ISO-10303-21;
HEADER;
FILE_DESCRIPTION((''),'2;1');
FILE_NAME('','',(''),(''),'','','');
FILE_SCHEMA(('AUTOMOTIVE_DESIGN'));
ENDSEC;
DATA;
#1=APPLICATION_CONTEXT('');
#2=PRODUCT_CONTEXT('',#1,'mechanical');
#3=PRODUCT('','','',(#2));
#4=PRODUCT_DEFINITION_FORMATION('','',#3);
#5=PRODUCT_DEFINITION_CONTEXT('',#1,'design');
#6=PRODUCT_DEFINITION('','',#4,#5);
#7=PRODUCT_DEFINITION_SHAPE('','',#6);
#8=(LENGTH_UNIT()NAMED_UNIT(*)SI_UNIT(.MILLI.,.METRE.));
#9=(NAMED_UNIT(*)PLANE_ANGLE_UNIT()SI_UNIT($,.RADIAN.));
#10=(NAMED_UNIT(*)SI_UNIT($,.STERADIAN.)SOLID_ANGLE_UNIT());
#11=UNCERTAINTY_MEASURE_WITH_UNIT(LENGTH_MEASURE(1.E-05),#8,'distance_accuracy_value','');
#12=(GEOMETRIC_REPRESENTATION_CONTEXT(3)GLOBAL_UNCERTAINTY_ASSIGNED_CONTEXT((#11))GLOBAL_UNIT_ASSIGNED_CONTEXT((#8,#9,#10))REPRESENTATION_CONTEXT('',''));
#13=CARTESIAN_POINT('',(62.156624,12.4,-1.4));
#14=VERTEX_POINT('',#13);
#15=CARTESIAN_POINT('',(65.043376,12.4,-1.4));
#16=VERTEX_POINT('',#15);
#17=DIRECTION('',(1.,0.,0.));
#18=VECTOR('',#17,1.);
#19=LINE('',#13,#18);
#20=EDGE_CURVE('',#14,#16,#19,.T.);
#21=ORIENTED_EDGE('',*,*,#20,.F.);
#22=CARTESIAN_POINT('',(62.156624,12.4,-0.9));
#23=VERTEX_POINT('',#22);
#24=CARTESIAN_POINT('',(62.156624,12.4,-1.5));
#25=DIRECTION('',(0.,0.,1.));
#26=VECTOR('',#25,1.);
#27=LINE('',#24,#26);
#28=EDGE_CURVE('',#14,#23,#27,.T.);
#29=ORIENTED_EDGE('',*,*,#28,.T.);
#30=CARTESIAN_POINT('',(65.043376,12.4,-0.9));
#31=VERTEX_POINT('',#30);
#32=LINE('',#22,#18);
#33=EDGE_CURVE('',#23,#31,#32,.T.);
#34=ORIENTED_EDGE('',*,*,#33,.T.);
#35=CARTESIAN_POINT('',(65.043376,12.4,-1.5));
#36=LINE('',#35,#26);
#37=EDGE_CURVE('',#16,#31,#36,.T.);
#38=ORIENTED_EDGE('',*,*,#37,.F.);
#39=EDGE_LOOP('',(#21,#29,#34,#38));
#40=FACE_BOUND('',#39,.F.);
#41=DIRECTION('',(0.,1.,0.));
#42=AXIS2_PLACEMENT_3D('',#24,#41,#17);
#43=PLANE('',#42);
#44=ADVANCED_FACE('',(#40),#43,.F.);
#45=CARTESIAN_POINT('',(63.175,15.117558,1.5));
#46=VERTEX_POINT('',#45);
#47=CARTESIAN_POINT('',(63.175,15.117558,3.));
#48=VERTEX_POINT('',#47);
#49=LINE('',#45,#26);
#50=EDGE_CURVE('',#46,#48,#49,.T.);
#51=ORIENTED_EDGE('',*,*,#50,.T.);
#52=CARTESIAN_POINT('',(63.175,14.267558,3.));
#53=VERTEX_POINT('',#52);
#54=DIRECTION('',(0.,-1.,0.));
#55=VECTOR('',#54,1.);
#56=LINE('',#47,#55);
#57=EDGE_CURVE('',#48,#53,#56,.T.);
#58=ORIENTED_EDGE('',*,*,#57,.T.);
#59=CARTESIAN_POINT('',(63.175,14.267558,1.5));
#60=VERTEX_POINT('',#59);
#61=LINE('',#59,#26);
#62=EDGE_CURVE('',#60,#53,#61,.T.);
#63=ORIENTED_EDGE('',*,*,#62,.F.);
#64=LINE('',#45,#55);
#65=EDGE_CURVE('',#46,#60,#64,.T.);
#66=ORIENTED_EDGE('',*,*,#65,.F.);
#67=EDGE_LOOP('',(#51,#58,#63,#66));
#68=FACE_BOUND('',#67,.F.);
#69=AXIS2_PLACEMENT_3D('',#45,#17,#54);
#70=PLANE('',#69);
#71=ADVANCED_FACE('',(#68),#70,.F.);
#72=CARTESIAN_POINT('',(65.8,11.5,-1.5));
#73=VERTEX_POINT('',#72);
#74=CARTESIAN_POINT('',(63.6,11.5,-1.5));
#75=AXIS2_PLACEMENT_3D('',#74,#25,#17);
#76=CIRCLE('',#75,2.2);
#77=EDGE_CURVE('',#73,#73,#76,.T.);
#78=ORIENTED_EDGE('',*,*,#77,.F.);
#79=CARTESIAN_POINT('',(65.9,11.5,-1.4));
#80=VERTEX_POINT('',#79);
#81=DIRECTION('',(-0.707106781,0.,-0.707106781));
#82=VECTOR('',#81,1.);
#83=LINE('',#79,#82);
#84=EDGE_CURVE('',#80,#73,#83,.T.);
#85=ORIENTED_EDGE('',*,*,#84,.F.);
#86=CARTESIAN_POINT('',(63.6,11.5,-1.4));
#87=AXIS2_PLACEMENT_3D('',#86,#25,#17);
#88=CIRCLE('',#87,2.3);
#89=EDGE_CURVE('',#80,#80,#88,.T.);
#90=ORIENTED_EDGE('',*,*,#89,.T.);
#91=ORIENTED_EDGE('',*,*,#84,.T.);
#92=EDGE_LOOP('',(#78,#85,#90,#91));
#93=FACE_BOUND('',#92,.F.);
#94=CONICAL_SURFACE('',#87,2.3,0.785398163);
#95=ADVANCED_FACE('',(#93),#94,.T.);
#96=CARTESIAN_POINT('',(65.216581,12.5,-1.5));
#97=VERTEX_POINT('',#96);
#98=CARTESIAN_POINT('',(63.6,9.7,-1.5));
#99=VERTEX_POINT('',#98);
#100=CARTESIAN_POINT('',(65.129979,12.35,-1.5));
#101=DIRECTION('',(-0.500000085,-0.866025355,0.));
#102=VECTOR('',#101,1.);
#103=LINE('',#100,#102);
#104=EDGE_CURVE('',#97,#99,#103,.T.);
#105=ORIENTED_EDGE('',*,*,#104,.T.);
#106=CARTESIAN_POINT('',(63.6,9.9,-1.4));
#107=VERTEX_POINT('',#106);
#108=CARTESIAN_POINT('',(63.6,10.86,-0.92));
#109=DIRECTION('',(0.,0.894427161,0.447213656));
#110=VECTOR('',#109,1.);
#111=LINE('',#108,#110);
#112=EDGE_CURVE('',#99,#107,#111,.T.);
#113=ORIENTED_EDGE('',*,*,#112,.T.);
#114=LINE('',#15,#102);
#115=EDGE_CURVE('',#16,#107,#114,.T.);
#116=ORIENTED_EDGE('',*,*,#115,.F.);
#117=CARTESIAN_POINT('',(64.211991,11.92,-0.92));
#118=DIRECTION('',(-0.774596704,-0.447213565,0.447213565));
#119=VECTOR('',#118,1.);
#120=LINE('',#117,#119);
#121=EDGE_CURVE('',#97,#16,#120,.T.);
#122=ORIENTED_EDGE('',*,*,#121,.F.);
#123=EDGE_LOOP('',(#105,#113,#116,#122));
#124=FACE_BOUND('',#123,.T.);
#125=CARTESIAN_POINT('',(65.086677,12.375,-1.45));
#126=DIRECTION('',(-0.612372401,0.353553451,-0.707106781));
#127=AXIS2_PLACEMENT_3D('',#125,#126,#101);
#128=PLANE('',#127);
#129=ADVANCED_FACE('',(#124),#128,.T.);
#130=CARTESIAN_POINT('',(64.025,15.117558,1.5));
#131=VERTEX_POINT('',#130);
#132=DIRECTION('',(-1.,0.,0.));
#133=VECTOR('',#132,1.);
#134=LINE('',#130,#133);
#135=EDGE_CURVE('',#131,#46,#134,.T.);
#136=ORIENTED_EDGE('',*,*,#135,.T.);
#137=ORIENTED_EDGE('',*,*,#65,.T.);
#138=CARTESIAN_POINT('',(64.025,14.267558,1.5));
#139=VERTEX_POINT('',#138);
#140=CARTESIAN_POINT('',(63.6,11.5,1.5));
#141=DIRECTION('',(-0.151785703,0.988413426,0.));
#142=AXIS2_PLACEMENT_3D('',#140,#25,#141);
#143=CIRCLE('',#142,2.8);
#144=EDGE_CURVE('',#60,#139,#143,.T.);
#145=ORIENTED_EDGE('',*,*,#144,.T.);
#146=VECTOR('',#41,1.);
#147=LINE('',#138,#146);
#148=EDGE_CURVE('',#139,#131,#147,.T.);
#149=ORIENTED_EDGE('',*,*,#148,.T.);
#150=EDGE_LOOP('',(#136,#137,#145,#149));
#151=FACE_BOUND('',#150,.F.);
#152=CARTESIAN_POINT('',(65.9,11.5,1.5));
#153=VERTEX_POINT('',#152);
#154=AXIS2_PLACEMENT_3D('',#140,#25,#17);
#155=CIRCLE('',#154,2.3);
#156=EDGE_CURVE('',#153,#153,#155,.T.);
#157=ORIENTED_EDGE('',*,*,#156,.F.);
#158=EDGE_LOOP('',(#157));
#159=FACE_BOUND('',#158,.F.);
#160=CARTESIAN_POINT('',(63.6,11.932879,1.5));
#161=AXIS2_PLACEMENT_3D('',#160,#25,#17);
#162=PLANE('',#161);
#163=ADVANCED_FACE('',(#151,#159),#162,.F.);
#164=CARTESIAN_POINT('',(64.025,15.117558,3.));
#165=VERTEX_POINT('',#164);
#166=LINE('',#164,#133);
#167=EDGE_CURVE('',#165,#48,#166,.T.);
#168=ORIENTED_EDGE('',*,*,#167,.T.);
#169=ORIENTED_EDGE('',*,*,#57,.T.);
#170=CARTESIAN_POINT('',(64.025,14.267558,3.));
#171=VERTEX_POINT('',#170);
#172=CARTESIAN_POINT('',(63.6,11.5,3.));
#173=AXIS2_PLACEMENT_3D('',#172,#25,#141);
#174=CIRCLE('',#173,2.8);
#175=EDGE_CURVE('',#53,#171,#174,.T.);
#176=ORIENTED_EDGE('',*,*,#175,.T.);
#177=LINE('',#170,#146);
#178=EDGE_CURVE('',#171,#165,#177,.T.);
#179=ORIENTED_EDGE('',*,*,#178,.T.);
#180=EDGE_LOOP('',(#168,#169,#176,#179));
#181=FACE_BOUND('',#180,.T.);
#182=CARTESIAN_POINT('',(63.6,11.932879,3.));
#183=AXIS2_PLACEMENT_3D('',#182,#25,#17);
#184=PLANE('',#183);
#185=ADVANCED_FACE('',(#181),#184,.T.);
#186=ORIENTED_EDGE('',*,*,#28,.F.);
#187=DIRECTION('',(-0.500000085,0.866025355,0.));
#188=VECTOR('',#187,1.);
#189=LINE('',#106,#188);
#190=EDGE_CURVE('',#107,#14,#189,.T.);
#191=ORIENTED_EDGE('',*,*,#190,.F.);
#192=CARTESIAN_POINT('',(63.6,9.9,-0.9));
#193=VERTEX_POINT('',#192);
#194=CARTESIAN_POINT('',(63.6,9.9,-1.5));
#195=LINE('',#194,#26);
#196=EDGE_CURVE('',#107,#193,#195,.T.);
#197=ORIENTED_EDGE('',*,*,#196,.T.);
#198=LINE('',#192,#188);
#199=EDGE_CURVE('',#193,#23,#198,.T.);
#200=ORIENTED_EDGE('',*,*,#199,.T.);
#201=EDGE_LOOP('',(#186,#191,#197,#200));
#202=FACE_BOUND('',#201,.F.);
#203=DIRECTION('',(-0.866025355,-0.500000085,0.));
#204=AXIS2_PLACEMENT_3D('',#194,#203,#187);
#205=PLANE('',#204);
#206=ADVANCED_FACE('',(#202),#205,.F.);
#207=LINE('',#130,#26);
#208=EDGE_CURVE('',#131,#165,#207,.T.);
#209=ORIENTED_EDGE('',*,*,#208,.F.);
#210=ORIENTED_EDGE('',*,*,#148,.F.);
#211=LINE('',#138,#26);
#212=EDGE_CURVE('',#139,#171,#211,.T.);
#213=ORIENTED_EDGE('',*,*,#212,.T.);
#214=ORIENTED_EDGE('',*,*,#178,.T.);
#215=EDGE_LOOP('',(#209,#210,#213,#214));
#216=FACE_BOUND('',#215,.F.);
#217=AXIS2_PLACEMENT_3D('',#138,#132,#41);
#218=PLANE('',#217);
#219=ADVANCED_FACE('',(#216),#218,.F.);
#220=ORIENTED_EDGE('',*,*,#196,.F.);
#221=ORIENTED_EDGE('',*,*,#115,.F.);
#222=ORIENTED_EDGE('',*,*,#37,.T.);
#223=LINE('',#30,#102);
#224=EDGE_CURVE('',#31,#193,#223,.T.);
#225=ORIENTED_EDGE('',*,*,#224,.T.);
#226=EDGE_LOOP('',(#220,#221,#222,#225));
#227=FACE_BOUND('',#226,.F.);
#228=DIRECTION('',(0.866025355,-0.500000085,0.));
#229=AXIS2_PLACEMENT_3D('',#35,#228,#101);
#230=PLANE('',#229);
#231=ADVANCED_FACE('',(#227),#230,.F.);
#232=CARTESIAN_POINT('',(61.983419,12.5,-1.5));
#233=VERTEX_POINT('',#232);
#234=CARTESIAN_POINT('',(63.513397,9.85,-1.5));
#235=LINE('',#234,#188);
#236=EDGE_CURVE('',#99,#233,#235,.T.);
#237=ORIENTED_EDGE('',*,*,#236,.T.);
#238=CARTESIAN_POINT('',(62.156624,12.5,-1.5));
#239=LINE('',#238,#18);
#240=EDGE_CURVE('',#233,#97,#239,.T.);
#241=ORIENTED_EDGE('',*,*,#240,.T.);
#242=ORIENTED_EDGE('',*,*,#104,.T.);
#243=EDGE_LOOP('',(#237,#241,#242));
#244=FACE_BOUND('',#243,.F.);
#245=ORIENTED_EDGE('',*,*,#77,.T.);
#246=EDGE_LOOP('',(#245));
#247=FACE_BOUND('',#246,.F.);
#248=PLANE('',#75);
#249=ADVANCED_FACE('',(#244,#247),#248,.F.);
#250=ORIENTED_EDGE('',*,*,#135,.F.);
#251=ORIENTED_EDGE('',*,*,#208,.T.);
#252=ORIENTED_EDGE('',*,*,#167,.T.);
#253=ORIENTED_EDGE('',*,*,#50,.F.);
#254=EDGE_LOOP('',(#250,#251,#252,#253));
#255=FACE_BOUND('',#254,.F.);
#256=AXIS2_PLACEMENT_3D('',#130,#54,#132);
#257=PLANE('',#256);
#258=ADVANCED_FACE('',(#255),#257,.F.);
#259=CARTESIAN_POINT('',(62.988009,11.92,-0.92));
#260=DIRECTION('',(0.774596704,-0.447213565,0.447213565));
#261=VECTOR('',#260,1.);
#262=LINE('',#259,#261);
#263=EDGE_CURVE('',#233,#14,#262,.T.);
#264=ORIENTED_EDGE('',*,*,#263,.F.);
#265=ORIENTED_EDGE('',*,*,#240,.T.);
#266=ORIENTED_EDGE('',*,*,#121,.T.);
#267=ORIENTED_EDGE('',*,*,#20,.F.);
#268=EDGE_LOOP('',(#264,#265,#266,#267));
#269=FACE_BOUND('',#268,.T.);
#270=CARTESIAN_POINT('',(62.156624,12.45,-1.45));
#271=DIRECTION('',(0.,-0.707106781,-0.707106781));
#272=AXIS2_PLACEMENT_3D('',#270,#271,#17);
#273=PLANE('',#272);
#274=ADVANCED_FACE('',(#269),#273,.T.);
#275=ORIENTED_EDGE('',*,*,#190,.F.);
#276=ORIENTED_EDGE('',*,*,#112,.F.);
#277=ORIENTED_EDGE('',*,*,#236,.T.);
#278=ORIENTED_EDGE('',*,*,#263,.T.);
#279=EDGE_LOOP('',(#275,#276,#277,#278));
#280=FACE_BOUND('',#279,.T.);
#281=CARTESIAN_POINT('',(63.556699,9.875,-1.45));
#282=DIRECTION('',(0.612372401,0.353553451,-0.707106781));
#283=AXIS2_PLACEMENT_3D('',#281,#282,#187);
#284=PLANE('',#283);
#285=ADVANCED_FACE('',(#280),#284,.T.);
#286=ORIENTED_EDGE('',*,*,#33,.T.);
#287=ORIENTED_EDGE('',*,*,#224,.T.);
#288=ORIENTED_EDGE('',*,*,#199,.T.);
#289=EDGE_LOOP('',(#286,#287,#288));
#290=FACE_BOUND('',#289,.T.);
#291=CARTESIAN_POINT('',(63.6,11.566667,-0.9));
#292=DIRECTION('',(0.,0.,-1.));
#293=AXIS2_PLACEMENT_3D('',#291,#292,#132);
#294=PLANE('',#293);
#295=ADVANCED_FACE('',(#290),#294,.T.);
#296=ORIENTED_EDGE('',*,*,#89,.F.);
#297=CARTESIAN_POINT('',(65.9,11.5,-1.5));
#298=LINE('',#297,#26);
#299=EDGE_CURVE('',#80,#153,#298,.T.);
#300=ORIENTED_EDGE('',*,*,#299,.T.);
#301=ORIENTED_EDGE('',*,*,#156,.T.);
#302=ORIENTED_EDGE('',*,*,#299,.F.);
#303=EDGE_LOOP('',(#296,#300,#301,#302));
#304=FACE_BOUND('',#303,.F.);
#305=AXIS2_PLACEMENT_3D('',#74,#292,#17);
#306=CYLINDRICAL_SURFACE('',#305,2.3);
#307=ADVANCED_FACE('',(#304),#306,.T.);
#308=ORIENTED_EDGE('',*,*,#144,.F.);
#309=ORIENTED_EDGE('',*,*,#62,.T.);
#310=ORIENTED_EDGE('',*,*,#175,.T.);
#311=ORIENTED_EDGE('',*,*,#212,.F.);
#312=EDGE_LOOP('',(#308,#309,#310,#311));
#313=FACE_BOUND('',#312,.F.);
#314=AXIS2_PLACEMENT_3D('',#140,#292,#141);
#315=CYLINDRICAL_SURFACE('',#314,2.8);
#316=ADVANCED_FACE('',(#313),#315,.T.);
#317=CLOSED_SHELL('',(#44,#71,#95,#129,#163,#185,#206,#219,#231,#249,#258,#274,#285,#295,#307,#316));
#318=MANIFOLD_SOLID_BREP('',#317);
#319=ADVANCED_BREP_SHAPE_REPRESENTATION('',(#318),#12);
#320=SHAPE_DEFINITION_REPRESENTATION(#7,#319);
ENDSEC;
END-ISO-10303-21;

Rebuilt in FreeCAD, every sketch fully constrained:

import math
import FreeCAD as App
import Part
import Sketcher

V = App.Vector
Q = App.Units.Quantity


def edges_at(feature, points):
    """Names of the edges that pass closest to the given points."""
    edges = feature.Shape.Edges
    near = lambda p: min(range(len(edges)), key=lambda i: edges[i].distToShape(Part.Vertex(*p))[0])
    return sorted({f"Edge{near(p) + 1}" for p in points})

doc = App.newDocument("Part")
body = doc.addObject("PartDesign::Body", "Body")

sketch1 = body.newObject("Sketcher::SketchObject", "Sketch")
sketch1.AttachmentSupport = (doc.getObject("XY_Plane"), [""])
sketch1.MapMode = "FlatFace"
sketch1.addGeometry(Part.Circle(V(0, 0, 0), V(0, 0, 1), 2.3), False)
sketch1.addConstraint([
    Sketcher.Constraint("Coincident", 0, 3, -1, 1),
    Sketcher.Constraint("Diameter", 0, 4.6),
])
pad1 = body.newObject("PartDesign::Pad", "Pad")
pad1.Profile = sketch1
pad1.Length = 3

sketch2 = body.newObject("Sketcher::SketchObject", "Sketch001")
sketch2.AttachmentSupport = (doc.getObject("XY_Plane"), [""])
sketch2.MapMode = "FlatFace"
sketch2.AttachmentOffset = App.Placement(V(0, 0, 3), App.Rotation())
sketch2.addGeometry([
    Part.LineSegment(V(0.4, 2.8, 0), V(0.4, 3.6, 0)),
    Part.LineSegment(V(0.4, 3.6, 0), V(-0.4, 3.6, 0)),
    Part.LineSegment(V(-0.4, 3.6, 0), V(-0.4, 2.8, 0)),
    Part.ArcOfCircle(Part.Circle(V(0, 0, 0), V(0, 0, 1), 2.8), math.radians(99), math.radians(441)),
], False)
sketch2.addConstraint([
    Sketcher.Constraint("Coincident", 0, 2, 1, 1),
    Sketcher.Constraint("Coincident", 1, 2, 2, 1),
    Sketcher.Constraint("Coincident", 2, 2, 3, 1),
    Sketcher.Constraint("Coincident", 3, 2, 0, 1),
    Sketcher.Constraint("Vertical", 0),
    Sketcher.Constraint("Horizontal", 1),
    Sketcher.Constraint("Vertical", 2),
    Sketcher.Constraint("Coincident", 3, 3, -1, 1),
    Sketcher.Constraint("Horizontal", 2, 2, 3, 2),
    Sketcher.Constraint("Equal", 1, 0),
    Sketcher.Constraint("Radius", 3, 2.8),
    Sketcher.Constraint("DistanceX", 1, 2, 1, 1, 0.85),
])
pad2 = body.newObject("PartDesign::Pad", "Pad001")
pad2.Profile = sketch2
pad2.Length = 1.5

sketch3 = body.newObject("Sketcher::SketchObject", "Sketch002")
sketch3.AttachmentSupport = (doc.getObject("XY_Plane"), [""])
sketch3.MapMode = "FlatFace"
sketch3.addGeometry([
    Part.LineSegment(V(0, -1.6, 0), V(1.4, 0.9, 0)),
    Part.LineSegment(V(1.4, 0.9, 0), V(-1.4, 0.9, 0)),
    Part.LineSegment(V(-1.4, 0.9, 0), V(0, -1.6, 0)),
], False)
sketch3.addConstraint([
    Sketcher.Constraint("Coincident", 0, 2, 1, 1),
    Sketcher.Constraint("Coincident", 1, 2, 2, 1),
    Sketcher.Constraint("Coincident", 2, 2, 0, 1),
    Sketcher.Constraint("Horizontal", 1),
    Sketcher.Constraint("PointOnObject", 2, 2, -2),
    Sketcher.Constraint("Equal", 0, 2),
    Sketcher.Constraint("Angle", 0, Q("59.999994 deg")),
    Sketcher.Constraint("DistanceY", -1, 1, 0, 2, 0.9),
    Sketcher.Constraint("DistanceY", 2, 2, -1, 1, 1.6),
])
pocket1 = body.newObject("PartDesign::Pocket", "Pocket")
pocket1.Profile = sketch3
pocket1.Length = 0.6
pocket1.Reversed = True
doc.recompute()

chamfer = body.newObject("PartDesign::Chamfer", "Chamfer")
chamfer.Base = (pocket1, edges_at(pocket1, [
    (0.722, -0.35, 0),
    (0, 0.9, 0),
    (-0.722, -0.35, 0),
    (-2.3, 0, 0),
]))
chamfer.Size = 0.1
body2 = doc.addObject("PartDesign::Body", "Body001")
doc.recompute()

body.Placement = App.Placement(V(63.6, 11.5, -1.5), App.Rotation(V(0, 0, 1), 0))
boolean = body2.newObject("PartDesign::Boolean", "Boolean")
boolean.Type = "Fuse"
boolean.addObjects([body])

doc.recompute()
